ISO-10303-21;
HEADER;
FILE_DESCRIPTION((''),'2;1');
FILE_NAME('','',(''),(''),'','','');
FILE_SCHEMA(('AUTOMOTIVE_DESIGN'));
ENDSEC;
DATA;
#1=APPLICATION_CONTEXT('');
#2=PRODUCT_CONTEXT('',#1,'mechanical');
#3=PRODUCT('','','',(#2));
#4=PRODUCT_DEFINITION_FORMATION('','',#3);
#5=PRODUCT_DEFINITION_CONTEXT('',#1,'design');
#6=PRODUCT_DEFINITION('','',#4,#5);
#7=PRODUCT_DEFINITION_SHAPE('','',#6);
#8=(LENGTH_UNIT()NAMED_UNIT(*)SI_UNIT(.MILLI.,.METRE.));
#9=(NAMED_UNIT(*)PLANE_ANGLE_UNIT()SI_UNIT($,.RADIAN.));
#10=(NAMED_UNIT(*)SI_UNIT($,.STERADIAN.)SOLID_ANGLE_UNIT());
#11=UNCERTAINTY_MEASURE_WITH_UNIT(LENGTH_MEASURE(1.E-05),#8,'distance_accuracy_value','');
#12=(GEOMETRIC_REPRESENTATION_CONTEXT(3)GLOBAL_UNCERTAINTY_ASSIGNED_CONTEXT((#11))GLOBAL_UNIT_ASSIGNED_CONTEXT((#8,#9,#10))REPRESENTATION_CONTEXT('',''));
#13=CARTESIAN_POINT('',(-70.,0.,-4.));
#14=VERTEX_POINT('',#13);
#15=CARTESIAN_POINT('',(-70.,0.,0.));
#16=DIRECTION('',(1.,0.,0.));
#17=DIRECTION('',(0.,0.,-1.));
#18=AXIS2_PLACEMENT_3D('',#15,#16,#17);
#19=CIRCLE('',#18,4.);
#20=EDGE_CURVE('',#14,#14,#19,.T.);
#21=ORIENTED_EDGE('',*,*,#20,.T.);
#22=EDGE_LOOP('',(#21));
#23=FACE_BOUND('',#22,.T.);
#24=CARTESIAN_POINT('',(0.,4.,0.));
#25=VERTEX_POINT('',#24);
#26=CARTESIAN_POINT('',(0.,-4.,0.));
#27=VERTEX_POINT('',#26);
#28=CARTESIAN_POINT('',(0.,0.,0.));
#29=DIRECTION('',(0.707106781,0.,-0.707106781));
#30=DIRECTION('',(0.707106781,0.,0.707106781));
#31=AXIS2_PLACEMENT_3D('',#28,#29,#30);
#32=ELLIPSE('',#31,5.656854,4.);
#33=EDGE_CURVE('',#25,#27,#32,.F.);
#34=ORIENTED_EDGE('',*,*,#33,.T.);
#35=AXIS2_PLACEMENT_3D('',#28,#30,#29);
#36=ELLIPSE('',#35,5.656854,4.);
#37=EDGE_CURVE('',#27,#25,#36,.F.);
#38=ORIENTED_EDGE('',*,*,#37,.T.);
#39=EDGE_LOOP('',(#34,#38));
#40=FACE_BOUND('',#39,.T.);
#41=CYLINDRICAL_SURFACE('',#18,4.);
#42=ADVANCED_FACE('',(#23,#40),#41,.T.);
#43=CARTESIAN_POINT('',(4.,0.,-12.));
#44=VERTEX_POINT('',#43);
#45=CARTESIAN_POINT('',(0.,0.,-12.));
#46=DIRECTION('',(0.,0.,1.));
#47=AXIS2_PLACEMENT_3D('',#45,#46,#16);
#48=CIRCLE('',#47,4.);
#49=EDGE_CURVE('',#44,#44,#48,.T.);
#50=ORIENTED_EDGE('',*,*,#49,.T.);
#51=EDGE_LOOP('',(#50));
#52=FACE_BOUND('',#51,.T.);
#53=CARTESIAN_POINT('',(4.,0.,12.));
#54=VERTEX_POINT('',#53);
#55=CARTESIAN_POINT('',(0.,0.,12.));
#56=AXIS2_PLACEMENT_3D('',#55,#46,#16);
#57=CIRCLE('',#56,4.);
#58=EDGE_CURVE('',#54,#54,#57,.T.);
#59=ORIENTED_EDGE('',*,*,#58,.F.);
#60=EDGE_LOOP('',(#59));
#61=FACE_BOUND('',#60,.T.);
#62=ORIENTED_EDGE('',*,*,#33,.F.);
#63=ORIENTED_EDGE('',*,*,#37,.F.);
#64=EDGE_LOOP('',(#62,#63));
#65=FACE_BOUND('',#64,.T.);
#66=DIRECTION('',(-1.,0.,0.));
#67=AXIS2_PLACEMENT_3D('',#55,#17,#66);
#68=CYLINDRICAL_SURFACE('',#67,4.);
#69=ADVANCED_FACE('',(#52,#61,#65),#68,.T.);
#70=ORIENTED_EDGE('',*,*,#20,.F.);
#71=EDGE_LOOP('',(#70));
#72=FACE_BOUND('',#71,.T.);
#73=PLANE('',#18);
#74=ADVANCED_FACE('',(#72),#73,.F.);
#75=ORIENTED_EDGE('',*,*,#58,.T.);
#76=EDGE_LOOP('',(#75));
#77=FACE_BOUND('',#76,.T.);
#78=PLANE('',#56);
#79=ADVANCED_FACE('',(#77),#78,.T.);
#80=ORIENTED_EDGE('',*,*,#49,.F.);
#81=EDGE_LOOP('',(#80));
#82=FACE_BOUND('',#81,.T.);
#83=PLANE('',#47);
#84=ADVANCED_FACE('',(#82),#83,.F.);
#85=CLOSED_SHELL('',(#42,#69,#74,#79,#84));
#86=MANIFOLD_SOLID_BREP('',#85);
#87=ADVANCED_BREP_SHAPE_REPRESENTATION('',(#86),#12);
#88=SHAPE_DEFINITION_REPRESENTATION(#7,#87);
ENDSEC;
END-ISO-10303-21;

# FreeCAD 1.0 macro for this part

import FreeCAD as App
import Part
import Sketcher

V = App.Vector

doc = App.newDocument("Part")
body = doc.addObject("PartDesign::Body", "Body")

# Sketch on YZ plane
sketch1 = body.newObject("Sketcher::SketchObject", "Sketch")
sketch1.AttachmentSupport = (doc.getObject("YZ_Plane"), [""])
sketch1.MapMode = "FlatFace"
sketch1.addGeometry(Part.Circle(V(0, 0, 0), V(0, 0, 1), 4), False)
sketch1.addConstraint([
    Sketcher.Constraint("Coincident", 0, 3, -1, 1),
    Sketcher.Constraint("Diameter", 0, 8.0),
])
pad1 = body.newObject("PartDesign::Pad", "Pad")
pad1.Profile = sketch1
pad1.Length = 70
pad1.Reversed = True

# Sketch on XY plane
sketch2 = body.newObject("Sketcher::SketchObject", "Sketch001")
sketch2.AttachmentSupport = (doc.getObject("XY_Plane"), [""])
sketch2.MapMode = "FlatFace"
sketch2.addGeometry(Part.Circle(V(0, 0, 0), V(0, 0, 1), 4), False)
sketch2.addConstraint([
    Sketcher.Constraint("Coincident", 0, 3, -1, 1),
    Sketcher.Constraint("Diameter", 0, 8.0),
])
pad2 = body.newObject("PartDesign::Pad", "Pad001")
pad2.Profile = sketch2
pad2.Type = "TwoLengths"
pad2.Length = 12
pad2.Length2 = 12

doc.recompute()
